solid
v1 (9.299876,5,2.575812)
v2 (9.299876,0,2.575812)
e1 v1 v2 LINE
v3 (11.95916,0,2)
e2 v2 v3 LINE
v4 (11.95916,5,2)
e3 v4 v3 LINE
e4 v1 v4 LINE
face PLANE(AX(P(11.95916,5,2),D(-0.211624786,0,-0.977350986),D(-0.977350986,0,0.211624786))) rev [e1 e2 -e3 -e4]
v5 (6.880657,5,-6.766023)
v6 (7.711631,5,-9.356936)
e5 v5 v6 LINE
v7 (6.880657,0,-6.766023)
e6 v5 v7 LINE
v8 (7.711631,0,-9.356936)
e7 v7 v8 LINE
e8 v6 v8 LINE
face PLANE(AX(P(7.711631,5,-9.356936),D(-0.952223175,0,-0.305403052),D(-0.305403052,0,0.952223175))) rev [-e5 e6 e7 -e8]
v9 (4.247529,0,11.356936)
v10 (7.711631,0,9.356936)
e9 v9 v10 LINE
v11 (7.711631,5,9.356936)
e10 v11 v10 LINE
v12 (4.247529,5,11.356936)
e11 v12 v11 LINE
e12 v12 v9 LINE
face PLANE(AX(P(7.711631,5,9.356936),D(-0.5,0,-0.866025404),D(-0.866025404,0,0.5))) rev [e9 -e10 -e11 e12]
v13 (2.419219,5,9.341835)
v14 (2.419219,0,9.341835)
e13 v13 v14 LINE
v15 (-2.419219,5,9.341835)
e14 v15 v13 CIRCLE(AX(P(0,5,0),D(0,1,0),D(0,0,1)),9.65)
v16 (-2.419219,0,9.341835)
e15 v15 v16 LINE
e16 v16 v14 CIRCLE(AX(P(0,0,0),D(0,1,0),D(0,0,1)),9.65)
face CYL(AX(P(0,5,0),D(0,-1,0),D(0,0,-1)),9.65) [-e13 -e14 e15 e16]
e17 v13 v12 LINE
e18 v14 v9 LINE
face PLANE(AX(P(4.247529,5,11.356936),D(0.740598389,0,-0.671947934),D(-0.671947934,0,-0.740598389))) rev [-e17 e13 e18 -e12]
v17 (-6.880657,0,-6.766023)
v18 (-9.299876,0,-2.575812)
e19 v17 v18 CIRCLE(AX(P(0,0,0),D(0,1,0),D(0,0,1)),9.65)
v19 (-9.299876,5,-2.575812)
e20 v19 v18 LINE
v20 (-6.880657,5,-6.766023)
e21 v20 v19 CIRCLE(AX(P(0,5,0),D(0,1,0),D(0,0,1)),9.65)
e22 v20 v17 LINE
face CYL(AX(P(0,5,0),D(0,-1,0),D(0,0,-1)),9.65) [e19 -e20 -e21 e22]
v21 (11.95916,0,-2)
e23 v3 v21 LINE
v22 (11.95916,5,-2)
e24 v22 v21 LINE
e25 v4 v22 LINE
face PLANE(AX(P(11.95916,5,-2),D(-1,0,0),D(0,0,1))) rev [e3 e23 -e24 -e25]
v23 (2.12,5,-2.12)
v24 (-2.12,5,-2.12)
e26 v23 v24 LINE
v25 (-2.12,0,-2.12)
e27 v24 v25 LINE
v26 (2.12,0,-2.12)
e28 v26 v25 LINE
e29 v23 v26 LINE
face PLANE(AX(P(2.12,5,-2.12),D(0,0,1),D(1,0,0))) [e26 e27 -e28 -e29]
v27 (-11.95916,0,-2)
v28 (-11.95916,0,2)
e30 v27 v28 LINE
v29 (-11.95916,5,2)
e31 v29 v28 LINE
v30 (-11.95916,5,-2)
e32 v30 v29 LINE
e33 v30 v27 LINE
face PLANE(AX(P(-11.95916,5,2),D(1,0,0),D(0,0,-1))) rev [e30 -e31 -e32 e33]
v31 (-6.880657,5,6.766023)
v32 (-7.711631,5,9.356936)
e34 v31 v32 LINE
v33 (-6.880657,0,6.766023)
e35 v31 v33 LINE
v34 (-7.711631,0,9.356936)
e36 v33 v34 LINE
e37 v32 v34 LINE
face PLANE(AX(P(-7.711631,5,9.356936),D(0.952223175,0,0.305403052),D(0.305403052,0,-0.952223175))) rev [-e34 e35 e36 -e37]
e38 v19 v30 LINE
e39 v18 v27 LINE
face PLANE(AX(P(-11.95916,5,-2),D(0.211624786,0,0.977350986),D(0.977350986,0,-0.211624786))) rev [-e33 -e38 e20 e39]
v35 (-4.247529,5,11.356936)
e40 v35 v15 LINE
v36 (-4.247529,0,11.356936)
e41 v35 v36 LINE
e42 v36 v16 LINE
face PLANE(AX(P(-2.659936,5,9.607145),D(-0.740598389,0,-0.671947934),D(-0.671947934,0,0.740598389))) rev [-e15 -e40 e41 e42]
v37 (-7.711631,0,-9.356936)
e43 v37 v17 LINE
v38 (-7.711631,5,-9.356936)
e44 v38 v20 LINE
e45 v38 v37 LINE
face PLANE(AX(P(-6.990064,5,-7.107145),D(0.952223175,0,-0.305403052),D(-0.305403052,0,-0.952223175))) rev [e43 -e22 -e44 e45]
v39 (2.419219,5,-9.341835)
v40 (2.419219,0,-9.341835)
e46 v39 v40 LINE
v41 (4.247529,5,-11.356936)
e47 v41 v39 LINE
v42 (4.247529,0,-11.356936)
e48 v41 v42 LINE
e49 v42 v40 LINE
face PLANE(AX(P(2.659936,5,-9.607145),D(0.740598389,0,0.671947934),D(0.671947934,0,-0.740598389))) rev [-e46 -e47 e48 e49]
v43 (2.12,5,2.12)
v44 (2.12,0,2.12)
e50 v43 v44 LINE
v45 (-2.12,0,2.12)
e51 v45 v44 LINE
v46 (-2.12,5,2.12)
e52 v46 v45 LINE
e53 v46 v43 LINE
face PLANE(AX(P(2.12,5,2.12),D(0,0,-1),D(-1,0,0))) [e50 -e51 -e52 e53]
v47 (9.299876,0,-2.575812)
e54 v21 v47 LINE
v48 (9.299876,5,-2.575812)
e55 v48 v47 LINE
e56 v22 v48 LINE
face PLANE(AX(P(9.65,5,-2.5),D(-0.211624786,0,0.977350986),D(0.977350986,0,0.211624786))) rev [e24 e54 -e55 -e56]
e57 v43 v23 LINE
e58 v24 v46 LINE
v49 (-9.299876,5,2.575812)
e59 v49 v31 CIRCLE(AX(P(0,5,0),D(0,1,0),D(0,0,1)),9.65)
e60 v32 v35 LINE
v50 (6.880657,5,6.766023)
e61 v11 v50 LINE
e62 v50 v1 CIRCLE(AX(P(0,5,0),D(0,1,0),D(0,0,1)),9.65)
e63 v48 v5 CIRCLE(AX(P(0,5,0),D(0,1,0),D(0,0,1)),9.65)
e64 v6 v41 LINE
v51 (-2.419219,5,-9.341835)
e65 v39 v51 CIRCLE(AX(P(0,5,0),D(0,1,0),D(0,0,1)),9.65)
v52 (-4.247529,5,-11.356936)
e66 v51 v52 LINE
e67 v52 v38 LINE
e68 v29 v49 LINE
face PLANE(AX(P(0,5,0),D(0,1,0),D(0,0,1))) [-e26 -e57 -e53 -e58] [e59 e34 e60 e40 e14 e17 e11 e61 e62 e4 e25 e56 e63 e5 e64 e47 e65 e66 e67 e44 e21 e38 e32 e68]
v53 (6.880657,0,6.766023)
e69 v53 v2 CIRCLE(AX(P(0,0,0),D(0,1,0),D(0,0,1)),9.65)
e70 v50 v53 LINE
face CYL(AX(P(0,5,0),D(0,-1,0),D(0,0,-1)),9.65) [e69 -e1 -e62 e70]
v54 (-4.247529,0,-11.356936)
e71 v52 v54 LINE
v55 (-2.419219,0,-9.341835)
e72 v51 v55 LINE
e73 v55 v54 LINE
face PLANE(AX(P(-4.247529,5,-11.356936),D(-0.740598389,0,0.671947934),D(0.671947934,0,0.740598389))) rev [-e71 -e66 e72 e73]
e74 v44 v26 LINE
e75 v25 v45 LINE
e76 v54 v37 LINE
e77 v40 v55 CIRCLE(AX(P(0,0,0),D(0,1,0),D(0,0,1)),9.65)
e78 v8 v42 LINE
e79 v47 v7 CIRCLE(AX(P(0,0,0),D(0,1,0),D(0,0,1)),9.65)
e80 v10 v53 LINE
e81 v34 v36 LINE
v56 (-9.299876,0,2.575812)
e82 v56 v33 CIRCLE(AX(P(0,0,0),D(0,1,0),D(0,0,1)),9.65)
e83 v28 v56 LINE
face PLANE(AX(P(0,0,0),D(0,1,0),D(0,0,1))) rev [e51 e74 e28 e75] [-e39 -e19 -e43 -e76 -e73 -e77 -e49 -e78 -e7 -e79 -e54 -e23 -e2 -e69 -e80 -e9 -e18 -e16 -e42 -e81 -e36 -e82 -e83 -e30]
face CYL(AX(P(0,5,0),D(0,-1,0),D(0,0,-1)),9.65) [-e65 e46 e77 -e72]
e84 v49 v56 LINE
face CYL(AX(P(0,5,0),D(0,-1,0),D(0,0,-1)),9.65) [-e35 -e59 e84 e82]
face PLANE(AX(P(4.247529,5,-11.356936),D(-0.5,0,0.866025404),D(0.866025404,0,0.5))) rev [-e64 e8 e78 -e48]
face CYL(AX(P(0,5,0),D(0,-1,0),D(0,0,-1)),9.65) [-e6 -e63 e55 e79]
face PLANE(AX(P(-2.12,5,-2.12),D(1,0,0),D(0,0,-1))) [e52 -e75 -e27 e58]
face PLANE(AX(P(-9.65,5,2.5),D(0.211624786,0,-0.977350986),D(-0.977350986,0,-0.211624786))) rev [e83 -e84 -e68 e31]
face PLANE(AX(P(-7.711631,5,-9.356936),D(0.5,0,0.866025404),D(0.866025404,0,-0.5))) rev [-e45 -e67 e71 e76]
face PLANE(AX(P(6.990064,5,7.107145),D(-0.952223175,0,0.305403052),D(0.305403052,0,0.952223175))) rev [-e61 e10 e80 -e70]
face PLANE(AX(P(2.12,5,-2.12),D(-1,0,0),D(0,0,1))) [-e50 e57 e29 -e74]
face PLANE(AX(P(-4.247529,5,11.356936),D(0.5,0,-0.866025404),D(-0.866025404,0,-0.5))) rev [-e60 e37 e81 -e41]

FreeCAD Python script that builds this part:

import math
import FreeCAD as App
import Part
import Sketcher
from FreeCAD import Vector
Q = App.Units.Quantity


def add_polygon(sketch, points):
    """Adds a closed chain of lines whose ends are joined by coincident constraints."""
    first, n = sketch.GeometryCount, len(points)
    for a, b in zip(points, points[1:] + points[:1]):
        sketch.addGeometry(Part.LineSegment(App.Vector(*a, 0), App.Vector(*b, 0)), False)
    for i in range(n):
        sketch.addConstraint(Sketcher.Constraint("Coincident", first + i, 2, first + (i + 1) % n, 1))

doc = App.newDocument("Part")
body = doc.addObject("PartDesign::Body", "Body")

sketch1 = doc.addObject("Sketcher::SketchObject", "Sketch")
body.addObject(sketch1)
sketch1.AttachmentSupport = (doc.XZ_Plane, [""])
sketch1.MapMode = "FlatFace"
sketch1.addGeometry(Part.LineSegment(Vector(4.247529, 11.356936, 0), Vector(7.711631, 9.356936, 0)), False)
sketch1.addGeometry(Part.LineSegment(Vector(7.711631, 9.356936, 0), Vector(6.990064, 7.107145, 0)), False)
sketch1.addGeometry(Part.LineSegment(Vector(6.990064, 7.107145, 0), Vector(6.880657, 6.766023, 0)), False)
sketch1.addGeometry(Part.ArcOfCircle(Part.Circle(Vector(0, 0, 0), Vector(0, 0, 1), 9.65), math.radians(15.48128), math.radians(44.51872)), False)
sketch1.addGeometry(Part.LineSegment(Vector(9.299876, 2.575812, 0), Vector(9.65, 2.5, 0)), False)
sketch1.addGeometry(Part.LineSegment(Vector(9.65, 2.5, 0), Vector(11.95916, 2, 0)), False)
sketch1.addGeometry(Part.LineSegment(Vector(11.95916, 2, 0), Vector(11.95916, -2, 0)), False)
sketch1.addGeometry(Part.LineSegment(Vector(11.95916, -2, 0), Vector(9.65, -2.5, 0)), False)
sketch1.addGeometry(Part.LineSegment(Vector(9.65, -2.5, 0), Vector(9.299876, -2.575812, 0)), False)
sketch1.addGeometry(Part.ArcOfCircle(Part.Circle(Vector(0, 0, 0), Vector(0, 0, 1), 9.65), math.radians(-44.51872), math.radians(-15.48128)), False)
sketch1.addGeometry(Part.LineSegment(Vector(6.880657, -6.766023, 0), Vector(6.990064, -7.107145, 0)), False)
sketch1.addGeometry(Part.LineSegment(Vector(6.990064, -7.107145, 0), Vector(7.711631, -9.356936, 0)), False)
sketch1.addGeometry(Part.LineSegment(Vector(7.711631, -9.356936, 0), Vector(4.247529, -11.356936, 0)), False)
sketch1.addGeometry(Part.LineSegment(Vector(4.247529, -11.356936, 0), Vector(2.659936, -9.607145, 0)), False)
sketch1.addGeometry(Part.LineSegment(Vector(2.659936, -9.607145, 0), Vector(2.419219, -9.341835, 0)), False)
sketch1.addGeometry(Part.ArcOfCircle(Part.Circle(Vector(0, 0, 0), Vector(0, 0, 1), 9.65), math.radians(-104.51872), math.radians(-75.48128)), False)
sketch1.addGeometry(Part.LineSegment(Vector(-2.419219, -9.341835, 0), Vector(-2.659936, -9.607145, 0)), False)
sketch1.addGeometry(Part.LineSegment(Vector(-2.659936, -9.607145, 0), Vector(-4.247529, -11.356936, 0)), False)
sketch1.addGeometry(Part.LineSegment(Vector(-4.247529, -11.356936, 0), Vector(-7.711631, -9.356936, 0)), False)
sketch1.addGeometry(Part.LineSegment(Vector(-7.711631, -9.356936, 0), Vector(-6.990064, -7.107145, 0)), False)
sketch1.addGeometry(Part.LineSegment(Vector(-6.990064, -7.107145, 0), Vector(-6.880657, -6.766023, 0)), False)
sketch1.addGeometry(Part.ArcOfCircle(Part.Circle(Vector(0, 0, 0), Vector(0, 0, 1), 9.65), math.radians(-164.51872), math.radians(-135.48128)), False)
sketch1.addGeometry(Part.LineSegment(Vector(-9.299876, -2.575812, 0), Vector(-9.65, -2.5, 0)), False)
sketch1.addGeometry(Part.LineSegment(Vector(-9.65, -2.5, 0), Vector(-11.95916, -2, 0)), False)
sketch1.addGeometry(Part.LineSegment(Vector(-11.95916, -2, 0), Vector(-11.95916, 2, 0)), False)
sketch1.addGeometry(Part.LineSegment(Vector(-11.95916, 2, 0), Vector(-9.65, 2.5, 0)), False)
sketch1.addGeometry(Part.LineSegment(Vector(-9.65, 2.5, 0), Vector(-9.299876, 2.575812, 0)), False)
sketch1.addGeometry(Part.ArcOfCircle(Part.Circle(Vector(0, 0, 0), Vector(0, 0, 1), 9.65), math.radians(135.48128), math.radians(164.51872)), False)
sketch1.addGeometry(Part.LineSegment(Vector(-6.880657, 6.766023, 0), Vector(-6.990064, 7.107145, 0)), False)
sketch1.addGeometry(Part.LineSegment(Vector(-6.990064, 7.107145, 0), Vector(-7.711631, 9.356936, 0)), False)
sketch1.addGeometry(Part.LineSegment(Vector(-7.711631, 9.356936, 0), Vector(-4.247529, 11.356936, 0)), False)
sketch1.addGeometry(Part.LineSegment(Vector(-4.247529, 11.356936, 0), Vector(-2.659936, 9.607145, 0)), False)
sketch1.addGeometry(Part.LineSegment(Vector(-2.659936, 9.607145, 0), Vector(-2.419219, 9.341835, 0)), False)
sketch1.addGeometry(Part.ArcOfCircle(Part.Circle(Vector(0, 0, 0), Vector(0, 0, 1), 9.65), math.radians(75.48128), math.radians(104.51872)), False)
sketch1.addGeometry(Part.LineSegment(Vector(2.419219, 9.341835, 0), Vector(2.659936, 9.607145, 0)), False)
sketch1.addGeometry(Part.LineSegment(Vector(2.659936, 9.607145, 0), Vector(4.247529, 11.356936, 0)), False)
add_polygon(sketch1, [(-2.12, 2.12), (-2.12, -2.12), (2.12, -2.12), (2.12, 2.12)])
sketch1.addConstraint(Sketcher.Constraint("Coincident", 0, 2, 1, 1))
sketch1.addConstraint(Sketcher.Constraint("Coincident", 1, 2, 2, 1))
sketch1.addConstraint(Sketcher.Constraint("Coincident", 2, 2, 3, 2))
sketch1.addConstraint(Sketcher.Constraint("Coincident", 3, 1, 4, 1))
sketch1.addConstraint(Sketcher.Constraint("Coincident", 4, 2, 5, 1))
sketch1.addConstraint(Sketcher.Constraint("Coincident", 5, 2, 6, 1))
sketch1.addConstraint(Sketcher.Constraint("Coincident", 6, 2, 7, 1))
sketch1.addConstraint(Sketcher.Constraint("Coincident", 7, 2, 8, 1))
sketch1.addConstraint(Sketcher.Constraint("Coincident", 8, 2, 9, 2))
sketch1.addConstraint(Sketcher.Constraint("Coincident", 9, 1, 10, 1))
sketch1.addConstraint(Sketcher.Constraint("Coincident", 10, 2, 11, 1))
sketch1.addConstraint(Sketcher.Constraint("Coincident", 11, 2, 12, 1))
sketch1.addConstraint(Sketcher.Constraint("Coincident", 12, 2, 13, 1))
sketch1.addConstraint(Sketcher.Constraint("Coincident", 13, 2, 14, 1))
sketch1.addConstraint(Sketcher.Constraint("Coincident", 14, 2, 15, 2))
sketch1.addConstraint(Sketcher.Constraint("Coincident", 15, 1, 16, 1))
sketch1.addConstraint(Sketcher.Constraint("Coincident", 16, 2, 17, 1))
sketch1.addConstraint(Sketcher.Constraint("Coincident", 17, 2, 18, 1))
sketch1.addConstraint(Sketcher.Constraint("Coincident", 18, 2, 19, 1))
sketch1.addConstraint(Sketcher.Constraint("Coincident", 19, 2, 20, 1))
sketch1.addConstraint(Sketcher.Constraint("Coincident", 20, 2, 21, 2))
sketch1.addConstraint(Sketcher.Constraint("Coincident", 21, 1, 22, 1))
sketch1.addConstraint(Sketcher.Constraint("Coincident", 22, 2, 23, 1))
sketch1.addConstraint(Sketcher.Constraint("Coincident", 23, 2, 24, 1))
sketch1.addConstraint(Sketcher.Constraint("Coincident", 24, 2, 25, 1))
sketch1.addConstraint(Sketcher.Constraint("Coincident", 25, 2, 26, 1))
sketch1.addConstraint(Sketcher.Constraint("Coincident", 26, 2, 27, 2))
sketch1.addConstraint(Sketcher.Constraint("Coincident", 27, 1, 28, 1))
sketch1.addConstraint(Sketcher.Constraint("Coincident", 28, 2, 29, 1))
sketch1.addConstraint(Sketcher.Constraint("Coincident", 29, 2, 30, 1))
sketch1.addConstraint(Sketcher.Constraint("Coincident", 30, 2, 31, 1))
sketch1.addConstraint(Sketcher.Constraint("Coincident", 31, 2, 32, 1))
sketch1.addConstraint(Sketcher.Constraint("Coincident", 32, 2, 33, 2))
sketch1.addConstraint(Sketcher.Constraint("Coincident", 33, 1, 34, 1))
sketch1.addConstraint(Sketcher.Constraint("Coincident", 34, 2, 35, 1))
sketch1.addConstraint(Sketcher.Constraint("Coincident", 35, 2, 0, 1))
sketch1.addConstraint(Sketcher.Constraint("Vertical", 6))
sketch1.addConstraint(Sketcher.Constraint("Vertical", 24))
sketch1.addConstraint(Sketcher.Constraint("Vertical", 36))
sketch1.addConstraint(Sketcher.Constraint("Horizontal", 37))
sketch1.addConstraint(Sketcher.Constraint("Vertical", 38))
sketch1.addConstraint(Sketcher.Constraint("Horizontal", 39))
sketch1.addConstraint(Sketcher.Constraint("Coincident", 3, 3, -1, 1))
sketch1.addConstraint(Sketcher.Constraint("Coincident", 9, 3, -1, 1))
sketch1.addConstraint(Sketcher.Constraint("Coincident", 15, 3, -1, 1))
sketch1.addConstraint(Sketcher.Constraint("Coincident", 21, 3, -1, 1))
sketch1.addConstraint(Sketcher.Constraint("Coincident", 27, 3, -1, 1))
sketch1.addConstraint(Sketcher.Constraint("Coincident", 33, 3, -1, 1))
sketch1.addConstraint(Sketcher.Constraint("Equal", 3, 9))
sketch1.addConstraint(Sketcher.Constraint("Equal", 9, 15))
sketch1.addConstraint(Sketcher.Constraint("Equal", 15, 21))
sketch1.addConstraint(Sketcher.Constraint("Equal", 21, 27))
sketch1.addConstraint(Sketcher.Constraint("Equal", 27, 33))
sketch1.addConstraint(Sketcher.Constraint("Symmetric", 0, 2, 18, 2, -1, 1))
sketch1.addConstraint(Sketcher.Constraint("Symmetric", 1, 2, 19, 2, -1, 1))
sketch1.addConstraint(Sketcher.Constraint("Symmetric", 4, 2, 22, 2, -1, 1))
sketch1.addConstraint(Sketcher.Constraint("Symmetric", 5, 2, 23, 2, -1, 1))
sketch1.addConstraint(Sketcher.Constraint("Symmetric", 7, 2, 25, 2, -1, 1))
sketch1.addConstraint(Sketcher.Constraint("Symmetric", 10, 2, 28, 2, -1, 1))
sketch1.addConstraint(Sketcher.Constraint("Symmetric", 11, 2, 29, 2, -1, 1))
sketch1.addConstraint(Sketcher.Constraint("Symmetric", 12, 2, 30, 2, -1, 1))
sketch1.addConstraint(Sketcher.Constraint("Symmetric", 13, 2, 31, 2, -1, 1))
sketch1.addConstraint(Sketcher.Constraint("Symmetric", 16, 2, 34, 2, -1, 1))
sketch1.addConstraint(Sketcher.Constraint("Symmetric", 17, 2, 35, 2, -1, 1))
sketch1.addConstraint(Sketcher.Constraint("Symmetric", 36, 2, 38, 2, -1, 1))
sketch1.addConstraint(Sketcher.Constraint("Symmetric", 13, 2, 16, 2, -2))
sketch1.addConstraint(Sketcher.Constraint("Symmetric", 12, 2, 17, 2, -2))
sketch1.addConstraint(Sketcher.Constraint("Symmetric", 11, 2, 18, 2, -2))
sketch1.addConstraint(Sketcher.Constraint("Symmetric", 10, 2, 19, 2, -2))
sketch1.addConstraint(Sketcher.Constraint("Symmetric", 7, 2, 22, 2, -2))
sketch1.addConstraint(Sketcher.Constraint("Parallel", 1, 2))
sketch1.addConstraint(Sketcher.Constraint("Parallel", 4, 5))
sketch1.addConstraint(Sketcher.Constraint("Parallel", 7, 8))
sketch1.addConstraint(Sketcher.Constraint("Parallel", 10, 11))
sketch1.addConstraint(Sketcher.Constraint("Parallel", 13, 14))
sketch1.addConstraint(Sketcher.Constraint("Parallel", 16, 17))
sketch1.addConstraint(Sketcher.Constraint("Parallel", 19, 20))
sketch1.addConstraint(Sketcher.Constraint("Parallel", 5, 22))
sketch1.addConstraint(Sketcher.Constraint("Parallel", 8, 25))
sketch1.addConstraint(Sketcher.Constraint("Parallel", 25, 26))
sketch1.addConstraint(Sketcher.Constraint("Parallel", 11, 28))
sketch1.addConstraint(Sketcher.Constraint("Parallel", 31, 32))
sketch1.addConstraint(Sketcher.Constraint("Parallel", 17, 34))
sketch1.addConstraint(Sketcher.Constraint("Horizontal", 8, 2, 21, 1))
sketch1.addConstraint(Sketcher.Constraint("Equal", 39, 36))
sketch1.addConstraint(Sketcher.Constraint("Equal", 2, 4))
sketch1.addConstraint(Sketcher.Constraint("Equal", 1, 5))
sketch1.addConstraint(Sketcher.Constraint("Equal", 11, 13))
sketch1.addConstraint(Sketcher.Constraint("Equal", 10, 14))
sketch1.addConstraint(Sketcher.Constraint("DistanceY", 6, 2, 6, 1, 4.0))
sketch1.addConstraint(Sketcher.Constraint("Angle", 0, Q("-30 deg")))
sketch1.addConstraint(Sketcher.Constraint("Radius", 3, 9.65))
sketch1.addConstraint(Sketcher.Constraint("Distance", 0, 4.0))
sketch1.addConstraint(Sketcher.Constraint("DistanceY", 7, 2, 4, 2, 5.0))
sketch1.addConstraint(Sketcher.Constraint("DistanceX", 37, 1, 37, 2, 4.24))
sketch1.addConstraint(Sketcher.Constraint("DistanceY", 13, 2, 10, 2, 2.5))
sketch1.addConstraint(Sketcher.Constraint("DistanceX", -1, 1, 4, 2, 9.65))
sketch1.addConstraint(Sketcher.Constraint("DistanceY", 12, 2, 14, 2, 2.015102))
sketch1.addConstraint(Sketcher.Constraint("DistanceX", -1, 1, 0, 2, 7.711631))
pad1 = doc.addObject("PartDesign::Pad", "Pad")
body.addObject(pad1)
pad1.Profile = sketch1
pad1.Length = 5
pad1.Reversed = True

doc.recompute()
